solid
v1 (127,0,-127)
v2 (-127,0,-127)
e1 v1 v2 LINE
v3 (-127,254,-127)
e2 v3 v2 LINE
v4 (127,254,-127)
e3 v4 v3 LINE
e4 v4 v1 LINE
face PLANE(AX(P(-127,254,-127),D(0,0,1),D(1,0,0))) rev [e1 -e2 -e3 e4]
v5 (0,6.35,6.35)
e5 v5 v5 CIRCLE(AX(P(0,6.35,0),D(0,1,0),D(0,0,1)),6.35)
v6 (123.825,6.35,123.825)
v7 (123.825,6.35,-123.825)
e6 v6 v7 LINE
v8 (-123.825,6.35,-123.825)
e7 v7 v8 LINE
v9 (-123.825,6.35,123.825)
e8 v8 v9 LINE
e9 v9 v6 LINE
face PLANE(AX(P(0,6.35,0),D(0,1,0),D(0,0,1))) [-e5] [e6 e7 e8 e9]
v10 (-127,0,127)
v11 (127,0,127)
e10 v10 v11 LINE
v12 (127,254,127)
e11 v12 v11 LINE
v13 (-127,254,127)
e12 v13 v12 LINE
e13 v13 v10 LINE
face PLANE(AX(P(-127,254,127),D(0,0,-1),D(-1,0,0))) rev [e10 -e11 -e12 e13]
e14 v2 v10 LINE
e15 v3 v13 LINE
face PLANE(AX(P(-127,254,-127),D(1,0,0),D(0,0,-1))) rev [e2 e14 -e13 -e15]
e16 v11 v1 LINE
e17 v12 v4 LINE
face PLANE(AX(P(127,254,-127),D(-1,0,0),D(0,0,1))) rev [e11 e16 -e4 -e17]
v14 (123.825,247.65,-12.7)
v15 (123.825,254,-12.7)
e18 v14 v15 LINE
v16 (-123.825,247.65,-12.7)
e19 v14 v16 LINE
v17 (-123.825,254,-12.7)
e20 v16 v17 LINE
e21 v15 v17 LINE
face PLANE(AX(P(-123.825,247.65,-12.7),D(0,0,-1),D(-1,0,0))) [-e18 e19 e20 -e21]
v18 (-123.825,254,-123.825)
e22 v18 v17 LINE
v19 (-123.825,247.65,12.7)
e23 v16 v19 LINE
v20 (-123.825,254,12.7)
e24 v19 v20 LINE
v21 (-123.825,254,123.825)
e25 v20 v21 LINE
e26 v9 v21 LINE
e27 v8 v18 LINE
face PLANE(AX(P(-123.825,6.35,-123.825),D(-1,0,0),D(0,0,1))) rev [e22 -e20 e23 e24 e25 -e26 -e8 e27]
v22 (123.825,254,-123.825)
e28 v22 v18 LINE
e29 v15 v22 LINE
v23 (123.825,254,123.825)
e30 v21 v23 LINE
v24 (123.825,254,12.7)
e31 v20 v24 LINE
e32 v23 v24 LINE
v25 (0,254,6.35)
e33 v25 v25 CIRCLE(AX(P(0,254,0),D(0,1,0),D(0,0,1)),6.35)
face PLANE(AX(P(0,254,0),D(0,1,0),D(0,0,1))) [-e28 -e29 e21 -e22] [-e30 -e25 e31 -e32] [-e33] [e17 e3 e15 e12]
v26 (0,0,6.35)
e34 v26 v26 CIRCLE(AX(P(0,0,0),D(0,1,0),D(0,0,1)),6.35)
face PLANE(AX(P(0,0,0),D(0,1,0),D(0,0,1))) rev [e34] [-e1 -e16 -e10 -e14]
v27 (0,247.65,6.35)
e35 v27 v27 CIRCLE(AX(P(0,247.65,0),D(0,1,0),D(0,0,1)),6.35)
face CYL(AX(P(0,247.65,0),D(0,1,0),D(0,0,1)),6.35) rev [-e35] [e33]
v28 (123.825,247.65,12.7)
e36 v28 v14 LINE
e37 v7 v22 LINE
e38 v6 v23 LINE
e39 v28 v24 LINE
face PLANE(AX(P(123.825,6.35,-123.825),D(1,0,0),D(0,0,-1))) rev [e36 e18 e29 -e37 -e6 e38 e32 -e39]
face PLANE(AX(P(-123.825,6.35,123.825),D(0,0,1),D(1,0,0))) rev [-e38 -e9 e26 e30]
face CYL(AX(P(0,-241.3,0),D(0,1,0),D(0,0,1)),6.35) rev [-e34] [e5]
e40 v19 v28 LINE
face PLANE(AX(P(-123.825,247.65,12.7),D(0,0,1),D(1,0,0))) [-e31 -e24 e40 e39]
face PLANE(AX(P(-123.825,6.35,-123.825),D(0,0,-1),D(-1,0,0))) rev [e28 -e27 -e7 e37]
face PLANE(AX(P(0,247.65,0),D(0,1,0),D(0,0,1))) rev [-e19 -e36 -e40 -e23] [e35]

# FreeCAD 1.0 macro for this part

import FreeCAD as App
import Part
import Sketcher
Q = App.Units.Quantity

doc = App.newDocument("Part")
body = doc.addObject("PartDesign::Body", "Body")

# Sketch on XZ plane
sketch1 = body.newObject("Sketcher::SketchObject", "Sketch")
sketch1.AttachmentSupport = (doc.getObject("XZ_Plane"), [""])
sketch1.MapMode = "FlatFace"
sketch1.addGeometry(Part.LineSegment(App.Vector(-127, -127, 0), App.Vector(-127, 127, 0)), False)
sketch1.addGeometry(Part.LineSegment(App.Vector(-127, 127, 0), App.Vector(127, 127, 0)), False)
sketch1.addGeometry(Part.LineSegment(App.Vector(127, 127, 0), App.Vector(127, -127, 0)), False)
sketch1.addGeometry(Part.LineSegment(App.Vector(127, -127, 0), App.Vector(-127, -127, 0)), False)
sketch1.addConstraint(Sketcher.Constraint("Coincident", 0, 2, 1, 1))
sketch1.addConstraint(Sketcher.Constraint("Coincident", 1, 2, 2, 1))
sketch1.addConstraint(Sketcher.Constraint("Coincident", 2, 2, 3, 1))
sketch1.addConstraint(Sketcher.Constraint("Coincident", 3, 2, 0, 1))
sketch1.addConstraint(Sketcher.Constraint("Vertical", 0))
sketch1.addConstraint(Sketcher.Constraint("Horizontal", 1))
sketch1.addConstraint(Sketcher.Constraint("Vertical", 2))
sketch1.addConstraint(Sketcher.Constraint("Horizontal", 3))
sketch1.addConstraint(Sketcher.Constraint("Symmetric", 0, 2, 2, 2, -1, 1))
sketch1.addConstraint(Sketcher.Constraint("Equal", 3, 0))
sketch1.addConstraint(Sketcher.Constraint("DistanceX", 1, 1, 1, 2, Q("10 in")))
pad1 = body.newObject("PartDesign::Pad", "Pad")
pad1.Profile = sketch1
pad1.Length = Q("10 in")
pad1.Reversed = True

# Sketch on XZ plane
sketch2 = body.newObject("Sketcher::SketchObject", "Sketch001")
sketch2.AttachmentSupport = (doc.getObject("XZ_Plane"), [""])
sketch2.MapMode = "FlatFace"
sketch2.AttachmentOffset = App.Placement(App.Vector(0, 0, -10 * 25.4), App.Rotation())
sketch2.addGeometry(Part.LineSegment(App.Vector(-124, -124, 0), App.Vector(-124, 124, 0)), False)
sketch2.addGeometry(Part.LineSegment(App.Vector(-124, 124, 0), App.Vector(124, 124, 0)), False)
sketch2.addGeometry(Part.LineSegment(App.Vector(124, 124, 0), App.Vector(124, -124, 0)), False)
sketch2.addGeometry(Part.LineSegment(App.Vector(124, -124, 0), App.Vector(-124, -124, 0)), False)
sketch2.addConstraint(Sketcher.Constraint("Coincident", 0, 2, 1, 1))
sketch2.addConstraint(Sketcher.Constraint("Coincident", 1, 2, 2, 1))
sketch2.addConstraint(Sketcher.Constraint("Coincident", 2, 2, 3, 1))
sketch2.addConstraint(Sketcher.Constraint("Coincident", 3, 2, 0, 1))
sketch2.addConstraint(Sketcher.Constraint("Vertical", 0))
sketch2.addConstraint(Sketcher.Constraint("Horizontal", 1))
sketch2.addConstraint(Sketcher.Constraint("Vertical", 2))
sketch2.addConstraint(Sketcher.Constraint("Horizontal", 3))
sketch2.addConstraint(Sketcher.Constraint("Symmetric", 0, 2, 2, 2, -1, 1))
sketch2.addConstraint(Sketcher.Constraint("Equal", 3, 0))
sketch2.addConstraint(Sketcher.Constraint("DistanceX", 1, 1, 1, 2, Q("9.75 in")))
pocket1 = body.newObject("PartDesign::Pocket", "Pocket")
pocket1.Profile = sketch2
pocket1.Length = Q("9.75 in")
pocket1.Reversed = True

# Sketch on XZ plane
sketch3 = body.newObject("Sketcher::SketchObject", "Sketch002")
sketch3.AttachmentSupport = (doc.getObject("XZ_Plane"), [""])
sketch3.MapMode = "FlatFace"
sketch3.AttachmentOffset = App.Placement(App.Vector(0, 0, -0.25 * 25.4), App.Rotation())
sketch3.addGeometry(Part.Circle(App.Vector(0, 0, 0), App.Vector(0, 0, 1), 6), False)
sketch3.addConstraint(Sketcher.Constraint("Coincident", 0, 3, -1, 1))
sketch3.addConstraint(Sketcher.Constraint("Diameter", 0, Q("0.5 in")))
pocket2 = body.newObject("PartDesign::Pocket", "Pocket001")
pocket2.Profile = sketch3
pocket2.Length = Q("9.75 in")
pocket2.Reversed = True

# Sketch on XZ plane
sketch4 = body.newObject("Sketcher::SketchObject", "Sketch003")
sketch4.AttachmentSupport = (doc.getObject("XZ_Plane"), [""])
sketch4.MapMode = "FlatFace"
sketch4.AttachmentOffset = App.Placement(App.Vector(0, 0, -10 * 25.4), App.Rotation())
sketch4.addGeometry(Part.LineSegment(App.Vector(-124, -13, 0), App.Vector(-124, 13, 0)), False)
sketch4.addGeometry(Part.LineSegment(App.Vector(-124, 13, 0), App.Vector(124, 13, 0)), False)
sketch4.addGeometry(Part.LineSegment(App.Vector(124, 13, 0), App.Vector(124, -13, 0)), False)
sketch4.addGeometry(Part.LineSegment(App.Vector(124, -13, 0), App.Vector(-124, -13, 0)), False)
sketch4.addGeometry(Part.Circle(App.Vector(0, 0, 0), App.Vector(0, 0, 1), 6), False)
sketch4.addConstraint(Sketcher.Constraint("Coincident", 0, 2, 1, 1))
sketch4.addConstraint(Sketcher.Constraint("Coincident", 1, 2, 2, 1))
sketch4.addConstraint(Sketcher.Constraint("Coincident", 2, 2, 3, 1))
sketch4.addConstraint(Sketcher.Constraint("Coincident", 3, 2, 0, 1))
sketch4.addConstraint(Sketcher.Constraint("Vertical", 0))
sketch4.addConstraint(Sketcher.Constraint("Horizontal", 1))
sketch4.addConstraint(Sketcher.Constraint("Vertical", 2))
sketch4.addConstraint(Sketcher.Constraint("Horizontal", 3))
sketch4.addConstraint(Sketcher.Constraint("Coincident", 4, 3, -1, 1))
sketch4.addConstraint(Sketcher.Constraint("Symmetric", 0, 2, 2, 2, -1, 1))
sketch4.addConstraint(Sketcher.Constraint("Diameter", 4, Q("0.5 in")))
sketch4.addConstraint(Sketcher.Constraint("DistanceY", 0, 1, 0, 2, Q("1 in")))
sketch4.addConstraint(Sketcher.Constraint("DistanceX", 1, 1, 1, 2, Q("9.75 in")))
pad2 = body.newObject("PartDesign::Pad", "Pad001")
pad2.Profile = sketch4
pad2.Length = Q("0.25 in")

doc.recompute()
